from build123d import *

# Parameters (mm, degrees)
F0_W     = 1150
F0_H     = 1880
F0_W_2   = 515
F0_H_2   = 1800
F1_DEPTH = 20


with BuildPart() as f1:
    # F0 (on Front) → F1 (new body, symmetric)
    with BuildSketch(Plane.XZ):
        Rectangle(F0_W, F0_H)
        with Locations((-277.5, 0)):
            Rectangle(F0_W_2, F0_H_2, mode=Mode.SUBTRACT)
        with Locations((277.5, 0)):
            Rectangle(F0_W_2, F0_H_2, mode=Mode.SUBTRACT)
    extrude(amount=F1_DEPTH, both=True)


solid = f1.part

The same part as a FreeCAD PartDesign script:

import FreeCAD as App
import Part
import Sketcher
Q = App.Units.Quantity

doc = App.newDocument("Part")
body = doc.addObject("PartDesign::Body", "Body")

# Sketch on XZ plane
sketch1 = body.newObject("Sketcher::SketchObject", "Sketch")
sketch1.AttachmentSupport = (doc.getObject("XZ_Plane"), [""])
sketch1.MapMode = "FlatFace"
sketch1.addGeometry([
    Part.LineSegment(App.Vector(-575, 940, 0), App.Vector(-575, -940, 0)),  # 0
    Part.LineSegment(App.Vector(-575, -940, 0), App.Vector(575, -940, 0)),  # 1
    Part.LineSegment(App.Vector(575, -940, 0), App.Vector(575, 940, 0)),  # 2
    Part.LineSegment(App.Vector(575, 940, 0), App.Vector(-575, 940, 0)),  # 3
    Part.LineSegment(App.Vector(-20, -900, 0), App.Vector(-535, -900, 0)),  # 4
    Part.LineSegment(App.Vector(-535, -900, 0), App.Vector(-535, 900, 0)),  # 5
    Part.LineSegment(App.Vector(-535, 900, 0), App.Vector(-20, 900, 0)),  # 6
    Part.LineSegment(App.Vector(-20, 900, 0), App.Vector(-20, -900, 0)),  # 7
    Part.LineSegment(App.Vector(535, -900, 0), App.Vector(20, -900, 0)),  # 8
    Part.LineSegment(App.Vector(20, -900, 0), App.Vector(20, 900, 0)),  # 9
    Part.LineSegment(App.Vector(20, 900, 0), App.Vector(535, 900, 0)),  # 10
    Part.LineSegment(App.Vector(535, 900, 0), App.Vector(535, -900, 0)),  # 11
], False)
sketch1.addConstraint([
    Sketcher.Constraint("Coincident", 0, 2, 1, 1),
    Sketcher.Constraint("Coincident", 1, 2, 2, 1),
    Sketcher.Constraint("Coincident", 2, 2, 3, 1),
    Sketcher.Constraint("Coincident", 3, 2, 0, 1),
    Sketcher.Constraint("Coincident", 4, 2, 5, 1),
    Sketcher.Constraint("Coincident", 5, 2, 6, 1),
    Sketcher.Constraint("Coincident", 6, 2, 7, 1),
    Sketcher.Constraint("Coincident", 7, 2, 4, 1),
    Sketcher.Constraint("Coincident", 8, 2, 9, 1),
    Sketcher.Constraint("Coincident", 9, 2, 10, 1),
    Sketcher.Constraint("Coincident", 10, 2, 11, 1),
    Sketcher.Constraint("Coincident", 11, 2, 8, 1),
    Sketcher.Constraint("Vertical", 0),
    Sketcher.Constraint("Horizontal", 1),
    Sketcher.Constraint("Vertical", 2),
    Sketcher.Constraint("Horizontal", 3),
    Sketcher.Constraint("Horizontal", 4),
    Sketcher.Constraint("Vertical", 5),
    Sketcher.Constraint("Horizontal", 6),
    Sketcher.Constraint("Vertical", 7),
    Sketcher.Constraint("Horizontal", 8),
    Sketcher.Constraint("Vertical", 9),
    Sketcher.Constraint("Horizontal", 10),
    Sketcher.Constraint("Vertical", 11),
    Sketcher.Constraint("Symmetric", 0, 2, 2, 2, -1, 1),
    Sketcher.Constraint("Symmetric", 6, 2, 8, 2, -1, 1),
    Sketcher.Constraint("Symmetric", 4, 2, 10, 2, -1, 1),
    Sketcher.Constraint("Horizontal", 7, 2, 8, 2),
    Sketcher.Constraint("DistanceX", 1, 1, 1, 2, Q("1150 mm")),
    Sketcher.Constraint("DistanceX", 4, 2, 4, 1, Q("515 mm")),
    Sketcher.Constraint("DistanceY", 0, 2, 0, 1, Q("1880 mm")),
    Sketcher.Constraint("DistanceY", 5, 1, 5, 2, Q("1800 mm")),
    Sketcher.Constraint("DistanceX", 4, 2, -1, 1, Q("535 mm")),
])
pad1 = body.newObject("PartDesign::Pad", "Pad")
pad1.Profile = sketch1
pad1.Length = 40
pad1.Midplane = True

doc.recompute()
